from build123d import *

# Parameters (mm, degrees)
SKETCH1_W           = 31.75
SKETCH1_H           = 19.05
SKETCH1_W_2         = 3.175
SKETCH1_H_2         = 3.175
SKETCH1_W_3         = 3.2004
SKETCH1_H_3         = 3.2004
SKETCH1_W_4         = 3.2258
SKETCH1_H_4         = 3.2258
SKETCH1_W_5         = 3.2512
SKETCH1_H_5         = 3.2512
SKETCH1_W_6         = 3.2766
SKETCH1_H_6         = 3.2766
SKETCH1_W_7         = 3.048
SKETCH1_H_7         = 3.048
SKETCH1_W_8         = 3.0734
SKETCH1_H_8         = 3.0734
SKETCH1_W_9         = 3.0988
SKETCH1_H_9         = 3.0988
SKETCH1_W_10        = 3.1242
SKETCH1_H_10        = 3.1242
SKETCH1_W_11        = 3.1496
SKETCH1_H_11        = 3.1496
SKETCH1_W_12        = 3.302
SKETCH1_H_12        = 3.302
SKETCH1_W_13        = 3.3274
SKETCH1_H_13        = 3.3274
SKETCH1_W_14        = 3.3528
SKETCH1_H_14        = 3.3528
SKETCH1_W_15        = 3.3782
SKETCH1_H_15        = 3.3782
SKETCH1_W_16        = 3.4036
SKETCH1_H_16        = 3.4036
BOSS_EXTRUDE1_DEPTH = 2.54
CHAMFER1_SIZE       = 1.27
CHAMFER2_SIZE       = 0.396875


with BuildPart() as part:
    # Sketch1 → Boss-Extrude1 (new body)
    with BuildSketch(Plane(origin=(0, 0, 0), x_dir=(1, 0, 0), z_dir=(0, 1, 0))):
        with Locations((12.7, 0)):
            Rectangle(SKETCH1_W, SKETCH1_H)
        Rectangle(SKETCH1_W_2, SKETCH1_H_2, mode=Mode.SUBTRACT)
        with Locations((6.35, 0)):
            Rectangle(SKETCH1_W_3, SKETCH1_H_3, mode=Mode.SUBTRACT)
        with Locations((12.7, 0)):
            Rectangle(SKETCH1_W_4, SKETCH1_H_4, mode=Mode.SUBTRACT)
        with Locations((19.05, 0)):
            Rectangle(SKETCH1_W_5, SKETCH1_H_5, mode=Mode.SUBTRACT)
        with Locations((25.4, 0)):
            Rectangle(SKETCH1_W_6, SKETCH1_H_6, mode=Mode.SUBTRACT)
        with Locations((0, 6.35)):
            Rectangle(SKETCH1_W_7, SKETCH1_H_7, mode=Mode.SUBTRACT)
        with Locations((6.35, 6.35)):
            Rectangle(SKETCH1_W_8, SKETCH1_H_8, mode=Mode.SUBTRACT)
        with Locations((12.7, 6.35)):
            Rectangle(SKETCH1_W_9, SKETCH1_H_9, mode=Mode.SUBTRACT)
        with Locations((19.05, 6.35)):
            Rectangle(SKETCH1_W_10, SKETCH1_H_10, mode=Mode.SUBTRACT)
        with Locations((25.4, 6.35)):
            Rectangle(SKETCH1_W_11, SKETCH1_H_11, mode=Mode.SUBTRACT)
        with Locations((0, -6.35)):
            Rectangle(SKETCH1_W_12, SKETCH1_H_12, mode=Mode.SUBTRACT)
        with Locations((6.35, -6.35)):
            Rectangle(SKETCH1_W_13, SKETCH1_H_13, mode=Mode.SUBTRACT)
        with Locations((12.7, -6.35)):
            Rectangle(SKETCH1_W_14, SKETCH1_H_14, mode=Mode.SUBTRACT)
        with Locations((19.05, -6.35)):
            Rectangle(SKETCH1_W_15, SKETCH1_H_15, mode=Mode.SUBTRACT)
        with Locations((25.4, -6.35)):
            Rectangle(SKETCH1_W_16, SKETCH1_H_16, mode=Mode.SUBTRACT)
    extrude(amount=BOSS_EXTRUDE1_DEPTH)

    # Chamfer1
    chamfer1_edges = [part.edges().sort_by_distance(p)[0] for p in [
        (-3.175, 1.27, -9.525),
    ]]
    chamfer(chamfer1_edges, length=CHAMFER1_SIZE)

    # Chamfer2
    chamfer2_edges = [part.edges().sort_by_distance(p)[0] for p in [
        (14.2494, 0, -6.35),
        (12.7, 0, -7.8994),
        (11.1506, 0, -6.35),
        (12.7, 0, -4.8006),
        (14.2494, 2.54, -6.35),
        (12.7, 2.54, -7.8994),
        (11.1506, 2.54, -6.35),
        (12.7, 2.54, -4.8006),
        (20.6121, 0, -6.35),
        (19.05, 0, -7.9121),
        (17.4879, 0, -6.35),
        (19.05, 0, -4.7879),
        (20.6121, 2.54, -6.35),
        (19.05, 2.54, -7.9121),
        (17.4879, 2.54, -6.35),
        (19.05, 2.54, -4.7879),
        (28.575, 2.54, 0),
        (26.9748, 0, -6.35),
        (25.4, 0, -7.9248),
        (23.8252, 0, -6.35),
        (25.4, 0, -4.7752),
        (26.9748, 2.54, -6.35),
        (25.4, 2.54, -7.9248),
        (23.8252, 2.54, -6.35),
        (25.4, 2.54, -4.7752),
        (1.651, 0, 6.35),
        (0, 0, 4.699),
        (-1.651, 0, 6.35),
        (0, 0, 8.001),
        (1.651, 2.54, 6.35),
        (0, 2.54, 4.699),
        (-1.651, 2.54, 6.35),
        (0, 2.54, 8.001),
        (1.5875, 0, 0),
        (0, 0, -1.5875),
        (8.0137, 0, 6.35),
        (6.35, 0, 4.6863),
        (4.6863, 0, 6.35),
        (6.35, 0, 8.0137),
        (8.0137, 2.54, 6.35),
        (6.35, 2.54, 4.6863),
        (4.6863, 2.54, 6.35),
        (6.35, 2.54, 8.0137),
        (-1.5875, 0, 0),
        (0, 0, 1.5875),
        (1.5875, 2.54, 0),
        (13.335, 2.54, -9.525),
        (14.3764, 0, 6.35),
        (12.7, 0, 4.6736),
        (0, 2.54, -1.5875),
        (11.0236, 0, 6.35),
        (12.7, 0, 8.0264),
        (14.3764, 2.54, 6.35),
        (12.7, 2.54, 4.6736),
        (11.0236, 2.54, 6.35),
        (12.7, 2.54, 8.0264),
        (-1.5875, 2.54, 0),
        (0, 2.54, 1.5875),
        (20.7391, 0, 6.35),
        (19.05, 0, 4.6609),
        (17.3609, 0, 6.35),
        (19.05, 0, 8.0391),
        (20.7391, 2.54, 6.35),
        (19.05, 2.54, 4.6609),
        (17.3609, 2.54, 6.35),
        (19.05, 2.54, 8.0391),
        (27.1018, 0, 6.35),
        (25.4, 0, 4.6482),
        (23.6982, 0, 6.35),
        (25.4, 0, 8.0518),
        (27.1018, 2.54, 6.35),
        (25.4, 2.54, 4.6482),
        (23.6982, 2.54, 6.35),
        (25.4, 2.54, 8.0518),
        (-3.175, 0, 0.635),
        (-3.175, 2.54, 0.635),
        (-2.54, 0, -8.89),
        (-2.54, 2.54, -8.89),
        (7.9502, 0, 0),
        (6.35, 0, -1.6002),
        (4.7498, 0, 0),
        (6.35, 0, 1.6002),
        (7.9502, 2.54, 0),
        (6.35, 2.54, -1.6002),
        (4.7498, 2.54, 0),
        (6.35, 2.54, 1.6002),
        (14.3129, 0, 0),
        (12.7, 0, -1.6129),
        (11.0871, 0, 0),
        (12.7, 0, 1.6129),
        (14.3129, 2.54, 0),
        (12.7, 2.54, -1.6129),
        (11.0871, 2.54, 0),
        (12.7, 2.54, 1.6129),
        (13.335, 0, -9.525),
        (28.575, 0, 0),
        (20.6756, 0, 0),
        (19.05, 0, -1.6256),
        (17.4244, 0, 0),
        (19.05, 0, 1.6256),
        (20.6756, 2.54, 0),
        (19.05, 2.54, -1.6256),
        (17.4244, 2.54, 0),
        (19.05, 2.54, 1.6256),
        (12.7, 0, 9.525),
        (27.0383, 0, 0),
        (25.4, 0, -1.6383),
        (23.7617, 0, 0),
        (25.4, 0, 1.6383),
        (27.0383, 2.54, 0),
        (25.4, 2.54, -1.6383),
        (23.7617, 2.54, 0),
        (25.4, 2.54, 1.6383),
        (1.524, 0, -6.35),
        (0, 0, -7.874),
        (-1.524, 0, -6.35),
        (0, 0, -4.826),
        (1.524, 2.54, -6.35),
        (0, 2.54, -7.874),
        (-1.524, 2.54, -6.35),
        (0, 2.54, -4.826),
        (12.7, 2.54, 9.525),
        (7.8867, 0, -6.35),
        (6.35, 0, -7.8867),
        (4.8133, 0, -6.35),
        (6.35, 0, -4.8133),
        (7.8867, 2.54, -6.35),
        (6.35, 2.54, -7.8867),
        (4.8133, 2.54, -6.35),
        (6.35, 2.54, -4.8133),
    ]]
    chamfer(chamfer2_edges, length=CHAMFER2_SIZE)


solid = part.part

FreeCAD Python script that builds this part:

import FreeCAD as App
import Part
import Sketcher

V = App.Vector
Q = App.Units.Quantity


def edges_at(feature, points):
    """Names of the edges that pass closest to the given points."""
    edges = feature.Shape.Edges
    near = lambda p: min(range(len(edges)), key=lambda i: edges[i].distToShape(Part.Vertex(*p))[0])
    return sorted({f"Edge{near(p) + 1}" for p in points})

doc = App.newDocument("Part")
body = doc.addObject("PartDesign::Body", "Body")

# Sketch on XZ plane
sketch1 = body.newObject("Sketcher::SketchObject", "Sketch")
sketch1.AttachmentSupport = (doc.getObject("XZ_Plane"), [""])
sketch1.MapMode = "FlatFace"
sketch1.addGeometry(Part.LineSegment(V(-3.2, -9.5, 0), V(-3.2, 9.5, 0)), False)
sketch1.addGeometry(Part.LineSegment(V(-3.2, 9.5, 0), V(28.6, 9.5, 0)), False)
sketch1.addGeometry(Part.LineSegment(V(28.6, 9.5, 0), V(28.6, -9.5, 0)), False)
sketch1.addGeometry(Part.LineSegment(V(28.6, -9.5, 0), V(-3.2, -9.5, 0)), False)
sketch1.addGeometry(Part.LineSegment(V(1.7, 8, 0), V(-1.7, 8, 0)), False)
sketch1.addGeometry(Part.LineSegment(V(-1.7, 8, 0), V(-1.7, 4.7, 0)), False)
sketch1.addGeometry(Part.LineSegment(V(-1.7, 4.7, 0), V(1.7, 4.7, 0)), False)
sketch1.addGeometry(Part.LineSegment(V(1.7, 4.7, 0), V(1.7, 8, 0)), False)
sketch1.addGeometry(Part.LineSegment(V(8, 8, 0), V(4.7, 8, 0)), False)
sketch1.addGeometry(Part.LineSegment(V(4.7, 8, 0), V(4.7, 4.7, 0)), False)
sketch1.addGeometry(Part.LineSegment(V(4.7, 4.7, 0), V(8, 4.7, 0)), False)
sketch1.addGeometry(Part.LineSegment(V(8, 4.7, 0), V(8, 8, 0)), False)
sketch1.addGeometry(Part.LineSegment(V(14.4, 8, 0), V(11, 8, 0)), False)
sketch1.addGeometry(Part.LineSegment(V(11, 8, 0), V(11, 4.7, 0)), False)
sketch1.addGeometry(Part.LineSegment(V(11, 4.7, 0), V(14.4, 4.7, 0)), False)
sketch1.addGeometry(Part.LineSegment(V(14.4, 4.7, 0), V(14.4, 8, 0)), False)
sketch1.addGeometry(Part.LineSegment(V(20.7, 8, 0), V(17.4, 8, 0)), False)
sketch1.addGeometry(Part.LineSegment(V(17.4, 8, 0), V(17.4, 4.7, 0)), False)
sketch1.addGeometry(Part.LineSegment(V(17.4, 4.7, 0), V(20.7, 4.7, 0)), False)
sketch1.addGeometry(Part.LineSegment(V(20.7, 4.7, 0), V(20.7, 8, 0)), False)
sketch1.addGeometry(Part.LineSegment(V(27.1, 8.1, 0), V(23.7, 8.1, 0)), False)
sketch1.addGeometry(Part.LineSegment(V(23.7, 8.1, 0), V(23.7, 4.6, 0)), False)
sketch1.addGeometry(Part.LineSegment(V(23.7, 4.6, 0), V(27.1, 4.6, 0)), False)
sketch1.addGeometry(Part.LineSegment(V(27.1, 4.6, 0), V(27.1, 8.1, 0)), False)
sketch1.addGeometry(Part.LineSegment(V(1.6, 1.6, 0), V(-1.6, 1.6, 0)), False)
sketch1.addGeometry(Part.LineSegment(V(-1.6, 1.6, 0), V(-1.6, -1.6, 0)), False)
sketch1.addGeometry(Part.LineSegment(V(-1.6, -1.6, 0), V(1.6, -1.6, 0)), False)
sketch1.addGeometry(Part.LineSegment(V(1.6, -1.6, 0), V(1.6, 1.6, 0)), False)
sketch1.addGeometry(Part.LineSegment(V(8, 1.6, 0), V(4.7, 1.6, 0)), False)
sketch1.addGeometry(Part.LineSegment(V(4.7, 1.6, 0), V(4.7, -1.6, 0)), False)
sketch1.addGeometry(Part.LineSegment(V(4.7, -1.6, 0), V(8, -1.6, 0)), False)
sketch1.addGeometry(Part.LineSegment(V(8, -1.6, 0), V(8, 1.6, 0)), False)
sketch1.addGeometry(Part.LineSegment(V(14.3, 1.6, 0), V(11.1, 1.6, 0)), False)
sketch1.addGeometry(Part.LineSegment(V(11.1, 1.6, 0), V(11.1, -1.6, 0)), False)
sketch1.addGeometry(Part.LineSegment(V(11.1, -1.6, 0), V(14.3, -1.6, 0)), False)
sketch1.addGeometry(Part.LineSegment(V(14.3, -1.6, 0), V(14.3, 1.6, 0)), False)
sketch1.addGeometry(Part.LineSegment(V(1.5, -4.8, 0), V(-1.5, -4.8, 0)), False)
sketch1.addGeometry(Part.LineSegment(V(-1.5, -4.8, 0), V(-1.5, -7.9, 0)), False)
sketch1.addGeometry(Part.LineSegment(V(-1.5, -7.9, 0), V(1.5, -7.9, 0)), False)
sketch1.addGeometry(Part.LineSegment(V(1.5, -7.9, 0), V(1.5, -4.8, 0)), False)
sketch1.addGeometry(Part.LineSegment(V(7.9, -4.8, 0), V(4.8, -4.8, 0)), False)
sketch1.addGeometry(Part.LineSegment(V(4.8, -4.8, 0), V(4.8, -7.9, 0)), False)
sketch1.addGeometry(Part.LineSegment(V(4.8, -7.9, 0), V(7.9, -7.9, 0)), False)
sketch1.addGeometry(Part.LineSegment(V(7.9, -7.9, 0), V(7.9, -4.8, 0)), False)
sketch1.addGeometry(Part.LineSegment(V(14.2, -4.8, 0), V(11.2, -4.8, 0)), False)
sketch1.addGeometry(Part.LineSegment(V(11.2, -4.8, 0), V(11.2, -7.9, 0)), False)
sketch1.addGeometry(Part.LineSegment(V(11.2, -7.9, 0), V(14.2, -7.9, 0)), False)
sketch1.addGeometry(Part.LineSegment(V(14.2, -7.9, 0), V(14.2, -4.8, 0)), False)
sketch1.addGeometry(Part.LineSegment(V(20.7, 1.6, 0), V(17.4, 1.6, 0)), False)
sketch1.addGeometry(Part.LineSegment(V(17.4, 1.6, 0), V(17.4, -1.6, 0)), False)
sketch1.addGeometry(Part.LineSegment(V(17.4, -1.6, 0), V(20.7, -1.6, 0)), False)
sketch1.addGeometry(Part.LineSegment(V(20.7, -1.6, 0), V(20.7, 1.6, 0)), False)
sketch1.addGeometry(Part.LineSegment(V(27, 1.6, 0), V(23.8, 1.6, 0)), False)
sketch1.addGeometry(Part.LineSegment(V(23.8, 1.6, 0), V(23.8, -1.6, 0)), False)
sketch1.addGeometry(Part.LineSegment(V(23.8, -1.6, 0), V(27, -1.6, 0)), False)
sketch1.addGeometry(Part.LineSegment(V(27, -1.6, 0), V(27, 1.6, 0)), False)
sketch1.addGeometry(Part.LineSegment(V(20.6, -4.8, 0), V(17.5, -4.8, 0)), False)
sketch1.addGeometry(Part.LineSegment(V(17.5, -4.8, 0), V(17.5, -7.9, 0)), False)
sketch1.addGeometry(Part.LineSegment(V(17.5, -7.9, 0), V(20.6, -7.9, 0)), False)
sketch1.addGeometry(Part.LineSegment(V(20.6, -7.9, 0), V(20.6, -4.8, 0)), False)
sketch1.addGeometry(Part.LineSegment(V(27, -4.8, 0), V(23.8, -4.8, 0)), False)
sketch1.addGeometry(Part.LineSegment(V(23.8, -4.8, 0), V(23.8, -7.9, 0)), False)
sketch1.addGeometry(Part.LineSegment(V(23.8, -7.9, 0), V(27, -7.9, 0)), False)
sketch1.addGeometry(Part.LineSegment(V(27, -7.9, 0), V(27, -4.8, 0)), False)
sketch1.addConstraint(Sketcher.Constraint("Coincident", 0, 2, 1, 1))
sketch1.addConstraint(Sketcher.Constraint("Coincident", 1, 2, 2, 1))
sketch1.addConstraint(Sketcher.Constraint("Coincident", 2, 2, 3, 1))
sketch1.addConstraint(Sketcher.Constraint("Coincident", 3, 2, 0, 1))
sketch1.addConstraint(Sketcher.Constraint("Coincident", 4, 2, 5, 1))
sketch1.addConstraint(Sketcher.Constraint("Coincident", 5, 2, 6, 1))
sketch1.addConstraint(Sketcher.Constraint("Coincident", 6, 2, 7, 1))
sketch1.addConstraint(Sketcher.Constraint("Coincident", 7, 2, 4, 1))
sketch1.addConstraint(Sketcher.Constraint("Coincident", 8, 2, 9, 1))
sketch1.addConstraint(Sketcher.Constraint("Coincident", 9, 2, 10, 1))
sketch1.addConstraint(Sketcher.Constraint("Coincident", 10, 2, 11, 1))
sketch1.addConstraint(Sketcher.Constraint("Coincident", 11, 2, 8, 1))
sketch1.addConstraint(Sketcher.Constraint("Coincident", 12, 2, 13, 1))
sketch1.addConstraint(Sketcher.Constraint("Coincident", 13, 2, 14, 1))
sketch1.addConstraint(Sketcher.Constraint("Coincident", 14, 2, 15, 1))
sketch1.addConstraint(Sketcher.Constraint("Coincident", 15, 2, 12, 1))
sketch1.addConstraint(Sketcher.Constraint("Coincident", 16, 2, 17, 1))
sketch1.addConstraint(Sketcher.Constraint("Coincident", 17, 2, 18, 1))
sketch1.addConstraint(Sketcher.Constraint("Coincident", 18, 2, 19, 1))
sketch1.addConstraint(Sketcher.Constraint("Coincident", 19, 2, 16, 1))
sketch1.addConstraint(Sketcher.Constraint("Coincident", 20, 2, 21, 1))
sketch1.addConstraint(Sketcher.Constraint("Coincident", 21, 2, 22, 1))
sketch1.addConstraint(Sketcher.Constraint("Coincident", 22, 2, 23, 1))
sketch1.addConstraint(Sketcher.Constraint("Coincident", 23, 2, 20, 1))
sketch1.addConstraint(Sketcher.Constraint("Coincident", 24, 2, 25, 1))
sketch1.addConstraint(Sketcher.Constraint("Coincident", 25, 2, 26, 1))
sketch1.addConstraint(Sketcher.Constraint("Coincident", 26, 2, 27, 1))
sketch1.addConstraint(Sketcher.Constraint("Coincident", 27, 2, 24, 1))
sketch1.addConstraint(Sketcher.Constraint("Coincident", 28, 2, 29, 1))
sketch1.addConstraint(Sketcher.Constraint("Coincident", 29, 2, 30, 1))
sketch1.addConstraint(Sketcher.Constraint("Coincident", 30, 2, 31, 1))
sketch1.addConstraint(Sketcher.Constraint("Coincident", 31, 2, 28, 1))
sketch1.addConstraint(Sketcher.Constraint("Coincident", 32, 2, 33, 1))
sketch1.addConstraint(Sketcher.Constraint("Coincident", 33, 2, 34, 1))
sketch1.addConstraint(Sketcher.Constraint("Coincident", 34, 2, 35, 1))
sketch1.addConstraint(Sketcher.Constraint("Coincident", 35, 2, 32, 1))
sketch1.addConstraint(Sketcher.Constraint("Coincident", 36, 2, 37, 1))
sketch1.addConstraint(Sketcher.Constraint("Coincident", 37, 2, 38, 1))
sketch1.addConstraint(Sketcher.Constraint("Coincident", 38, 2, 39, 1))
sketch1.addConstraint(Sketcher.Constraint("Coincident", 39, 2, 36, 1))
sketch1.addConstraint(Sketcher.Constraint("Coincident", 40, 2, 41, 1))
sketch1.addConstraint(Sketcher.Constraint("Coincident", 41, 2, 42, 1))
sketch1.addConstraint(Sketcher.Constraint("Coincident", 42, 2, 43, 1))
sketch1.addConstraint(Sketcher.Constraint("Coincident", 43, 2, 40, 1))
sketch1.addConstraint(Sketcher.Constraint("Coincident", 44, 2, 45, 1))
sketch1.addConstraint(Sketcher.Constraint("Coincident", 45, 2, 46, 1))
sketch1.addConstraint(Sketcher.Constraint("Coincident", 46, 2, 47, 1))
sketch1.addConstraint(Sketcher.Constraint("Coincident", 47, 2, 44, 1))
sketch1.addConstraint(Sketcher.Constraint("Coincident", 48, 2, 49, 1))
sketch1.addConstraint(Sketcher.Constraint("Coincident", 49, 2, 50, 1))
sketch1.addConstraint(Sketcher.Constraint("Coincident", 50, 2, 51, 1))
sketch1.addConstraint(Sketcher.Constraint("Coincident", 51, 2, 48, 1))
sketch1.addConstraint(Sketcher.Constraint("Coincident", 52, 2, 53, 1))
sketch1.addConstraint(Sketcher.Constraint("Coincident", 53, 2, 54, 1))
sketch1.addConstraint(Sketcher.Constraint("Coincident", 54, 2, 55, 1))
sketch1.addConstraint(Sketcher.Constraint("Coincident", 55, 2, 52, 1))
sketch1.addConstraint(Sketcher.Constraint("Coincident", 56, 2, 57, 1))
sketch1.addConstraint(Sketcher.Constraint("Coincident", 57, 2, 58, 1))
sketch1.addConstraint(Sketcher.Constraint("Coincident", 58, 2, 59, 1))
sketch1.addConstraint(Sketcher.Constraint("Coincident", 59, 2, 56, 1))
sketch1.addConstraint(Sketcher.Constraint("Coincident", 60, 2, 61, 1))
sketch1.addConstraint(Sketcher.Constraint("Coincident", 61, 2, 62, 1))
sketch1.addConstraint(Sketcher.Constraint("Coincident", 62, 2, 63, 1))
sketch1.addConstraint(Sketcher.Constraint("Coincident", 63, 2, 60, 1))
sketch1.addConstraint(Sketcher.Constraint("Vertical", 0))
sketch1.addConstraint(Sketcher.Constraint("Horizontal", 1))
sketch1.addConstraint(Sketcher.Constraint("Vertical", 2))
sketch1.addConstraint(Sketcher.Constraint("Horizontal", 3))
sketch1.addConstraint(Sketcher.Constraint("Horizontal", 4))
sketch1.addConstraint(Sketcher.Constraint("Vertical", 5))
sketch1.addConstraint(Sketcher.Constraint("Horizontal", 6))
sketch1.addConstraint(Sketcher.Constraint("Vertical", 7))
sketch1.addConstraint(Sketcher.Constraint("Horizontal", 8))
sketch1.addConstraint(Sketcher.Constraint("Vertical", 9))
sketch1.addConstraint(Sketcher.Constraint("Horizontal", 10))
sketch1.addConstraint(Sketcher.Constraint("Vertical", 11))
sketch1.addConstraint(Sketcher.Constraint("Horizontal", 12))
sketch1.addConstraint(Sketcher.Constraint("Vertical", 13))
sketch1.addConstraint(Sketcher.Constraint("Horizontal", 14))
sketch1.addConstraint(Sketcher.Constraint("Vertical", 15))
sketch1.addConstraint(Sketcher.Constraint("Horizontal", 16))
sketch1.addConstraint(Sketcher.Constraint("Vertical", 17))
sketch1.addConstraint(Sketcher.Constraint("Horizontal", 18))
sketch1.addConstraint(Sketcher.Constraint("Vertical", 19))
sketch1.addConstraint(Sketcher.Constraint("Horizontal", 20))
sketch1.addConstraint(Sketcher.Constraint("Vertical", 21))
sketch1.addConstraint(Sketcher.Constraint("Horizontal", 22))
sketch1.addConstraint(Sketcher.Constraint("Vertical", 23))
sketch1.addConstraint(Sketcher.Constraint("Horizontal", 24))
sketch1.addConstraint(Sketcher.Constraint("Vertical", 25))
sketch1.addConstraint(Sketcher.Constraint("Horizontal", 26))
sketch1.addConstraint(Sketcher.Constraint("Vertical", 27))
sketch1.addConstraint(Sketcher.Constraint("Horizontal", 28))
sketch1.addConstraint(Sketcher.Constraint("Vertical", 29))
sketch1.addConstraint(Sketcher.Constraint("Horizontal", 30))
sketch1.addConstraint(Sketcher.Constraint("Vertical", 31))
sketch1.addConstraint(Sketcher.Constraint("Horizontal", 32))
sketch1.addConstraint(Sketcher.Constraint("Vertical", 33))
sketch1.addConstraint(Sketcher.Constraint("Horizontal", 34))
sketch1.addConstraint(Sketcher.Constraint("Vertical", 35))
sketch1.addConstraint(Sketcher.Constraint("Horizontal", 36))
sketch1.addConstraint(Sketcher.Constraint("Vertical", 37))
sketch1.addConstraint(Sketcher.Constraint("Horizontal", 38))
sketch1.addConstraint(Sketcher.Constraint("Vertical", 39))
sketch1.addConstraint(Sketcher.Constraint("Horizontal", 40))
sketch1.addConstraint(Sketcher.Constraint("Vertical", 41))
sketch1.addConstraint(Sketcher.Constraint("Horizontal", 42))
sketch1.addConstraint(Sketcher.Constraint("Vertical", 43))
sketch1.addConstraint(Sketcher.Constraint("Horizontal", 44))
sketch1.addConstraint(Sketcher.Constraint("Vertical", 45))
sketch1.addConstraint(Sketcher.Constraint("Horizontal", 46))
sketch1.addConstraint(Sketcher.Constraint("Vertical", 47))
sketch1.addConstraint(Sketcher.Constraint("Horizontal", 48))
sketch1.addConstraint(Sketcher.Constraint("Vertical", 49))
sketch1.addConstraint(Sketcher.Constraint("Horizontal", 50))
sketch1.addConstraint(Sketcher.Constraint("Vertical", 51))
sketch1.addConstraint(Sketcher.Constraint("Horizontal", 52))
sketch1.addConstraint(Sketcher.Constraint("Vertical", 53))
sketch1.addConstraint(Sketcher.Constraint("Horizontal", 54))
sketch1.addConstraint(Sketcher.Constraint("Vertical", 55))
sketch1.addConstraint(Sketcher.Constraint("Horizontal", 56))
sketch1.addConstraint(Sketcher.Constraint("Vertical", 57))
sketch1.addConstraint(Sketcher.Constraint("Horizontal", 58))
sketch1.addConstraint(Sketcher.Constraint("Vertical", 59))
sketch1.addConstraint(Sketcher.Constraint("Horizontal", 60))
sketch1.addConstraint(Sketcher.Constraint("Vertical", 61))
sketch1.addConstraint(Sketcher.Constraint("Horizontal", 62))
sketch1.addConstraint(Sketcher.Constraint("Vertical", 63))
sketch1.addConstraint(Sketcher.Constraint("Symmetric", 24, 2, 26, 2, -1, 1))
sketch1.addConstraint(Sketcher.Constraint("Equal", 6, 5))
sketch1.addConstraint(Sketcher.Constraint("Equal", 10, 9))
sketch1.addConstraint(Sketcher.Constraint("Equal", 14, 13))
sketch1.addConstraint(Sketcher.Constraint("Equal", 18, 17))
sketch1.addConstraint(Sketcher.Constraint("Equal", 22, 21))
sketch1.addConstraint(Sketcher.Constraint("Equal", 26, 25))
sketch1.addConstraint(Sketcher.Constraint("Equal", 30, 29))
sketch1.addConstraint(Sketcher.Constraint("Equal", 34, 33))
sketch1.addConstraint(Sketcher.Constraint("Equal", 38, 37))
sketch1.addConstraint(Sketcher.Constraint("Equal", 42, 41))
sketch1.addConstraint(Sketcher.Constraint("Equal", 46, 45))
sketch1.addConstraint(Sketcher.Constraint("Equal", 50, 49))
sketch1.addConstraint(Sketcher.Constraint("Equal", 54, 53))
sketch1.addConstraint(Sketcher.Constraint("Equal", 58, 57))
sketch1.addConstraint(Sketcher.Constraint("Equal", 62, 61))
sketch1.addConstraint(Sketcher.Constraint("DistanceX", 1, 1, 1, 2, Q("1.25 in")))
sketch1.addConstraint(Sketcher.Constraint("DistanceX", 4, 2, 4, 1, Q("0.13 in")))
sketch1.addConstraint(Sketcher.Constraint("DistanceX", 36, 2, 36, 1, Q("0.12 in")))
sketch1.addConstraint(Sketcher.Constraint("DistanceY", 0, 1, 0, 2, Q("0.75 in")))
sketch1.addConstraint(Sketcher.Constraint("DistanceX", 8, 2, 8, 1, Q("0.131 in")))
sketch1.addConstraint(Sketcher.Constraint("DistanceX", 12, 2, 12, 1, Q("0.132 in")))
sketch1.addConstraint(Sketcher.Constraint("DistanceX", 16, 2, 16, 1, Q("0.133 in")))
sketch1.addConstraint(Sketcher.Constraint("DistanceX", 20, 2, 20, 1, Q("0.134 in")))
sketch1.addConstraint(Sketcher.Constraint("DistanceX", 24, 2, 24, 1, Q("0.125 in")))
sketch1.addConstraint(Sketcher.Constraint("DistanceX", 28, 2, 28, 1, Q("0.126 in")))
sketch1.addConstraint(Sketcher.Constraint("DistanceX", 32, 2, 32, 1, Q("0.127 in")))
sketch1.addConstraint(Sketcher.Constraint("DistanceX", 40, 2, 40, 1, Q("0.121 in")))
sketch1.addConstraint(Sketcher.Constraint("DistanceX", 44, 2, 44, 1, Q("0.122 in")))
sketch1.addConstraint(Sketcher.Constraint("DistanceX", 48, 2, 48, 1, Q("0.128 in")))
sketch1.addConstraint(Sketcher.Constraint("DistanceX", 52, 2, 52, 1, Q("0.129 in")))
sketch1.addConstraint(Sketcher.Constraint("DistanceX", 56, 2, 56, 1, Q("0.123 in")))
sketch1.addConstraint(Sketcher.Constraint("DistanceX", 60, 2, 60, 1, Q("0.124 in")))
sketch1.addConstraint(Sketcher.Constraint("DistanceX", 36, 2, -1, 1, Q("0.06 in")))
sketch1.addConstraint(Sketcher.Constraint("DistanceY", 36, 2, -1, 1, Q("0.19 in")))
sketch1.addConstraint(Sketcher.Constraint("DistanceX", 0, 2, -1, 1, Q("0.125 in")))
sketch1.addConstraint(Sketcher.Constraint("DistanceY", -1, 1, 0, 2, Q("0.375 in")))
sketch1.addConstraint(Sketcher.Constraint("DistanceX", 4, 2, -1, 1, Q("0.065 in")))
sketch1.addConstraint(Sketcher.Constraint("DistanceY", -1, 1, 4, 2, Q("0.315 in")))
sketch1.addConstraint(Sketcher.Constraint("DistanceX", -1, 1, 12, 2, Q("0.434 in")))
sketch1.addConstraint(Sketcher.Constraint("DistanceY", -1, 1, 12, 2, Q("0.316 in")))
sketch1.addConstraint(Sketcher.Constraint("DistanceX", -1, 1, 20, 2, Q("0.933 in")))
sketch1.addConstraint(Sketcher.Constraint("DistanceY", -1, 1, 20, 2, Q("0.317 in")))
sketch1.addConstraint(Sketcher.Constraint("DistanceX", -1, 1, 28, 2, Q("0.187 in")))
sketch1.addConstraint(Sketcher.Constraint("DistanceY", -1, 1, 28, 2, Q("0.063 in")))
sketch1.addConstraint(Sketcher.Constraint("DistanceX", -1, 1, 44, 2, Q("0.439 in")))
sketch1.addConstraint(Sketcher.Constraint("DistanceY", 44, 2, -1, 1, Q("0.189 in")))
sketch1.addConstraint(Sketcher.Constraint("DistanceX", -1, 1, 48, 2, Q("0.686 in")))
sketch1.addConstraint(Sketcher.Constraint("DistanceY", -1, 1, 48, 2, Q("0.064 in")))
sketch1.addConstraint(Sketcher.Constraint("DistanceX", -1, 1, 60, 2, Q("0.938 in")))
sketch1.addConstraint(Sketcher.Constraint("DistanceY", 60, 2, -1, 1, Q("0.188 in")))
sketch1.addConstraint(Sketcher.Constraint("DistanceX", -1, 1, 8, 2, Q("0.1845 in")))
sketch1.addConstraint(Sketcher.Constraint("DistanceY", -1, 1, 8, 2, Q("0.3155 in")))
sketch1.addConstraint(Sketcher.Constraint("DistanceX", -1, 1, 16, 2, Q("0.6835 in")))
sketch1.addConstraint(Sketcher.Constraint("DistanceY", -1, 1, 16, 2, Q("0.3165 in")))
sketch1.addConstraint(Sketcher.Constraint("DistanceX", -1, 1, 32, 2, Q("0.4365 in")))
sketch1.addConstraint(Sketcher.Constraint("DistanceY", -1, 1, 32, 2, Q("0.0635 in")))
sketch1.addConstraint(Sketcher.Constraint("DistanceX", -1, 1, 40, 2, Q("0.1895 in")))
sketch1.addConstraint(Sketcher.Constraint("DistanceY", 40, 2, -1, 1, Q("0.1895 in")))
sketch1.addConstraint(Sketcher.Constraint("DistanceX", -1, 1, 52, 2, Q("0.9355 in")))
sketch1.addConstraint(Sketcher.Constraint("DistanceY", -1, 1, 52, 2, Q("0.0645 in")))
sketch1.addConstraint(Sketcher.Constraint("DistanceX", -1, 1, 56, 2, Q("0.6885 in")))
sketch1.addConstraint(Sketcher.Constraint("DistanceY", 56, 2, -1, 1, Q("0.1885 in")))
pad1 = body.newObject("PartDesign::Pad", "Pad")
pad1.Profile = sketch1
pad1.Length = Q("0.1 in")
pad1.Reversed = True
doc.recompute()

chamfer = body.newObject("PartDesign::Chamfer", "Chamfer")
chamfer.Base = (pad1, edges_at(pad1, [(-3.175, 1.27, -9.525)]))
chamfer.Size = Q("0.05 in")
doc.recompute()

chamfer2 = body.newObject("PartDesign::Chamfer", "Chamfer001")
chamfer2.Base = (chamfer, edges_at(chamfer, [
    (14.249, 0, -6.35),
    (12.7, 0, -7.899),
    (11.151, 0, -6.35),
    (12.7, 0, -4.801),
    (14.249, 2.54, -6.35),
    (12.7, 2.54, -7.899),
    (11.151, 2.54, -6.35),
    (12.7, 2.54, -4.801),
    (20.612, 0, -6.35),
    (19.05, 0, -7.912),
    (17.488, 0, -6.35),
    (19.05, 0, -4.788),
    (20.612, 2.54, -6.35),
    (19.05, 2.54, -7.912),
    (17.488, 2.54, -6.35),
    (19.05, 2.54, -4.788),
    (28.575, 2.54, 0),
    (26.975, 0, -6.35),
    (25.4, 0, -7.925),
    (23.825, 0, -6.35),
    (25.4, 0, -4.775),
    (26.975, 2.54, -6.35),
    (25.4, 2.54, -7.925),
    (23.825, 2.54, -6.35),
    (25.4, 2.54, -4.775),
    (1.651, 0, 6.35),
    (0, 0, 4.699),
    (-1.651, 0, 6.35),
    (0, 0, 8.001),
    (1.651, 2.54, 6.35),
    (0, 2.54, 4.699),
    (-1.651, 2.54, 6.35),
    (0, 2.54, 8.001),
    (1.587, 0, 0),
    (0, 0, -1.587),
    (8.014, 0, 6.35),
    (6.35, 0, 4.686),
    (4.686, 0, 6.35),
    (6.35, 0, 8.014),
    (8.014, 2.54, 6.35),
    (6.35, 2.54, 4.686),
    (4.686, 2.54, 6.35),
    (6.35, 2.54, 8.014),
    (-1.587, 0, 0),
    (0, 0, 1.587),
    (1.587, 2.54, 0),
    (13.335, 2.54, -9.525),
    (14.376, 0, 6.35),
    (12.7, 0, 4.674),
    (0, 2.54, -1.587),
    (11.024, 0, 6.35),
    (12.7, 0, 8.026),
    (14.376, 2.54, 6.35),
    (12.7, 2.54, 4.674),
    (11.024, 2.54, 6.35),
    (12.7, 2.54, 8.026),
    (-1.587, 2.54, 0),
    (0, 2.54, 1.587),
    (20.739, 0, 6.35),
    (19.05, 0, 4.661),
    (17.361, 0, 6.35),
    (19.05, 0, 8.039),
    (20.739, 2.54, 6.35),
    (19.05, 2.54, 4.661),
    (17.361, 2.54, 6.35),
    (19.05, 2.54, 8.039),
    (27.102, 0, 6.35),
    (25.4, 0, 4.648),
    (23.698, 0, 6.35),
    (25.4, 0, 8.052),
    (27.102, 2.54, 6.35),
    (25.4, 2.54, 4.648),
    (23.698, 2.54, 6.35),
    (25.4, 2.54, 8.052),
    (-3.175, 0, 0.635),
    (-3.175, 2.54, 0.635),
    (-2.54, 0, -8.89),
    (-2.54, 2.54, -8.89),
    (7.95, 0, 0),
    (6.35, 0, -1.6),
    (4.75, 0, 0),
    (6.35, 0, 1.6),
    (7.95, 2.54, 0),
    (6.35, 2.54, -1.6),
    (4.75, 2.54, 0),
    (6.35, 2.54, 1.6),
    (14.313, 0, 0),
    (12.7, 0, -1.613),
    (11.087, 0, 0),
    (12.7, 0, 1.613),
    (14.313, 2.54, 0),
    (12.7, 2.54, -1.613),
    (11.087, 2.54, 0),
    (12.7, 2.54, 1.613),
    (13.335, 0, -9.525),
    (28.575, 0, 0),
    (20.676, 0, 0),
    (19.05, 0, -1.626),
    (17.424, 0, 0),
    (19.05, 0, 1.626),
    (20.676, 2.54, 0),
    (19.05, 2.54, -1.626),
    (17.424, 2.54, 0),
    (19.05, 2.54, 1.626),
    (12.7, 0, 9.525),
    (27.038, 0, 0),
    (25.4, 0, -1.638),
    (23.762, 0, 0),
    (25.4, 0, 1.638),
    (27.038, 2.54, 0),
    (25.4, 2.54, -1.638),
    (23.762, 2.54, 0),
    (25.4, 2.54, 1.638),
    (1.524, 0, -6.35),
    (0, 0, -7.874),
    (-1.524, 0, -6.35),
    (0, 0, -4.826),
    (1.524, 2.54, -6.35),
    (0, 2.54, -7.874),
    (-1.524, 2.54, -6.35),
    (0, 2.54, -4.826),
    (12.7, 2.54, 9.525),
    (7.887, 0, -6.35),
    (6.35, 0, -7.887),
    (4.813, 0, -6.35),
    (6.35, 0, -4.813),
    (7.887, 2.54, -6.35),
    (6.35, 2.54, -7.887),
    (4.813, 2.54, -6.35),
    (6.35, 2.54, -4.813),
]))
chamfer2.Size = Q("0.015625 in")

doc.recompute()
